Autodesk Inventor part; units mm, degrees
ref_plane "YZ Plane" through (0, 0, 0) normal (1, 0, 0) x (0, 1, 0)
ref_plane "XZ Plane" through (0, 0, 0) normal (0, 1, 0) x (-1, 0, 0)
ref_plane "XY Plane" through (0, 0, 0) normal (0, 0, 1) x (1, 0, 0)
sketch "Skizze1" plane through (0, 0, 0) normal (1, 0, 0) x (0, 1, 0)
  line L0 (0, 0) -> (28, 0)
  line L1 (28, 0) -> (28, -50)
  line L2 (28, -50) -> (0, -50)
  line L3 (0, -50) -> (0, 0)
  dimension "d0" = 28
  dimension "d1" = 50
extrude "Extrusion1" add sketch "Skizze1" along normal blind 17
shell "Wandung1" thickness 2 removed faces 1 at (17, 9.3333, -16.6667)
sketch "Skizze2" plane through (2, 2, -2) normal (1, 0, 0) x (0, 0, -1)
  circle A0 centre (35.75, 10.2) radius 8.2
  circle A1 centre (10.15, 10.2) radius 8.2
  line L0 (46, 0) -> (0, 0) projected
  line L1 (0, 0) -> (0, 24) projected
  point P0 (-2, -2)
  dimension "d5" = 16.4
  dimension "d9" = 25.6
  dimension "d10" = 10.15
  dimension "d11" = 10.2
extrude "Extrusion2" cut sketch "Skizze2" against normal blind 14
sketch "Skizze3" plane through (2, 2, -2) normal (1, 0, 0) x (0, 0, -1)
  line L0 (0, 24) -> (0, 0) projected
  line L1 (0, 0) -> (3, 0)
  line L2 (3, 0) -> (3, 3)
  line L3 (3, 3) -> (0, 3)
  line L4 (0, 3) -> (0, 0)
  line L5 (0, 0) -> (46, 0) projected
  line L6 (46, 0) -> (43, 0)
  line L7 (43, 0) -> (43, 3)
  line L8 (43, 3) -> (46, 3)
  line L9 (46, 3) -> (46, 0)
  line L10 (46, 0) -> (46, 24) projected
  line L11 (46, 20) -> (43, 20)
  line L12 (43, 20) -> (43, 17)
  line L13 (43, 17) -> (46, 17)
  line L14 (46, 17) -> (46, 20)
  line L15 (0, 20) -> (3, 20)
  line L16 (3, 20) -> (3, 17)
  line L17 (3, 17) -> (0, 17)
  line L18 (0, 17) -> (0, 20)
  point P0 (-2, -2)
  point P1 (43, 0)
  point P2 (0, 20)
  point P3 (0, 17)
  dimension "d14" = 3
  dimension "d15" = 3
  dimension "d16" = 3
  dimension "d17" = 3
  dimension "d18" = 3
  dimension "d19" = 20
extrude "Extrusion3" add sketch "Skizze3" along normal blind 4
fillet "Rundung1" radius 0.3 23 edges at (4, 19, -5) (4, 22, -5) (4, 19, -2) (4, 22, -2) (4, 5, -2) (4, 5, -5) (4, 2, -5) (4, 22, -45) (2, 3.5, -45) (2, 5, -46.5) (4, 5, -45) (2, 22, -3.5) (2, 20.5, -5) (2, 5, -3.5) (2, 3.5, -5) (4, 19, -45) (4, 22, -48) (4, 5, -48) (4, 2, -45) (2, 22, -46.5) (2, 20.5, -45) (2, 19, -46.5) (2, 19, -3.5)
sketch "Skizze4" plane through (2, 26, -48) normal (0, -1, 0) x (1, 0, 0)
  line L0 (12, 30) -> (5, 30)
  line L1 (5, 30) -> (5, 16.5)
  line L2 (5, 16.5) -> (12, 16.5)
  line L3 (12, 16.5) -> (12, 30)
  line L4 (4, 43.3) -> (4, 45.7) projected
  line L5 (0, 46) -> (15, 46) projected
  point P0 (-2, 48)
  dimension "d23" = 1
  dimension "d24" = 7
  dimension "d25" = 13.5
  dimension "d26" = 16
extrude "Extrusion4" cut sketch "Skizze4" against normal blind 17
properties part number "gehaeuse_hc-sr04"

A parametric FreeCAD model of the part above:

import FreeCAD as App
import Part
import Sketcher
from FreeCAD import Vector


def edges_at(feature, points):
    """Names of the edges that pass closest to the given points."""
    edges = feature.Shape.Edges
    near = lambda p: min(range(len(edges)), key=lambda i: edges[i].distToShape(Part.Vertex(*p))[0])
    return sorted({f"Edge{near(p) + 1}" for p in points})


def faces_at(feature, points):
    """Names of the faces that lie closest to the given points."""
    faces = feature.Shape.Faces
    near = lambda p: min(range(len(faces)), key=lambda i: faces[i].distToShape(Part.Vertex(*p))[0])
    return sorted({f"Face{near(p) + 1}" for p in points})

doc = App.newDocument("Part")
params = doc.addObject("Spreadsheet::Sheet", "Params")
for row, (alias, value) in enumerate([
    ("sketch1_width", "28 mm"),
    ("sketch1_height", "50 mm"),
    ("pad1_length", "17 mm"),
    ("thickness_wall", "2 mm"),
    ("sketch2_diameter", "16.4 mm"),
    ("pocket1_length", "14 mm"),
    ("sketch3_width", "3 mm"),
    ("pad2_length", "4 mm"),
    ("fillet_radius", "0.3 mm"),
    ("sketch4_width", "7 mm"),
    ("sketch4_height", "13.5 mm"),
    ("pocket2_length", "17 mm"),
], start=1):
    params.set(f"A{row}", alias)
    params.set(f"B{row}", "=" + value)
    params.setAlias(f"B{row}", alias)

body = doc.addObject("PartDesign::Body", "Body")

# Sketch on YZ plane
sketch1 = body.newObject("Sketcher::SketchObject", "Sketch")
sketch1.AttachmentSupport = (doc.getObject("YZ_Plane"), [""])
sketch1.MapMode = "FlatFace"
sketch1.addGeometry(Part.LineSegment(Vector(28, 0, 0), Vector(0, 0, 0)), False)
sketch1.addGeometry(Part.LineSegment(Vector(0, 0, 0), Vector(0, -50, 0)), False)
sketch1.addGeometry(Part.LineSegment(Vector(0, -50, 0), Vector(28, -50, 0)), False)
sketch1.addGeometry(Part.LineSegment(Vector(28, -50, 0), Vector(28, 0, 0)), False)
sketch1.addConstraint(Sketcher.Constraint("Coincident", 0, 2, 1, 1))
sketch1.addConstraint(Sketcher.Constraint("Coincident", 1, 2, 2, 1))
sketch1.addConstraint(Sketcher.Constraint("Coincident", 2, 2, 3, 1))
sketch1.addConstraint(Sketcher.Constraint("Coincident", 3, 2, 0, 1))
sketch1.addConstraint(Sketcher.Constraint("Horizontal", 0))
sketch1.addConstraint(Sketcher.Constraint("Vertical", 1))
sketch1.addConstraint(Sketcher.Constraint("Horizontal", 2))
sketch1.addConstraint(Sketcher.Constraint("Vertical", 3))
sketch1.addConstraint(Sketcher.Constraint("Coincident", 0, 2, -1, 1))
sketch1.addConstraint(Sketcher.Constraint("DistanceX", 0, 2, 0, 1, 28.0))
sketch1.addConstraint(Sketcher.Constraint("DistanceY", 1, 2, 1, 1, 50.0))
sketch1.setExpression("Constraints[9]", "Params.sketch1_width")
sketch1.setExpression("Constraints[10]", "Params.sketch1_height")
pad1 = body.newObject("PartDesign::Pad", "Pad")
pad1.Profile = sketch1
pad1.setExpression("Length", "Params.pad1_length")
doc.recompute()

thickness = body.newObject("PartDesign::Thickness", "Thickness")
thickness.Base = (pad1, faces_at(pad1, [(17, 9.333, -16.667)]))
thickness.setExpression("Value", "Params.thickness_wall")
thickness.Reversed = True
thickness.Join = "Intersection"

# Sketch on YZ plane
sketch2 = body.newObject("Sketcher::SketchObject", "Sketch001")
sketch2.AttachmentSupport = (doc.getObject("YZ_Plane"), [""])
sketch2.MapMode = "FlatFace"
sketch2.AttachmentOffset = App.Placement(Vector(0, 0, 2), App.Rotation())
sketch2.addGeometry(Part.Circle(Vector(12, -38, 0), Vector(0, 0, 1), 8), False)
sketch2.addGeometry(Part.Circle(Vector(12, -12, 0), Vector(0, 0, 1), 8), False)
sketch2.addConstraint(Sketcher.Constraint("Equal", 0, 1))
sketch2.addConstraint(Sketcher.Constraint("Vertical", 0, 3, 1, 3))
sketch2.addConstraint(Sketcher.Constraint("Diameter", 0, 16.4))
sketch2.addConstraint(Sketcher.Constraint("DistanceY", 0, 3, 1, 3, 25.6))
sketch2.addConstraint(Sketcher.Constraint("DistanceX", -1, 1, 0, 3, 12.2))
sketch2.addConstraint(Sketcher.Constraint("DistanceY", 0, 3, -1, 1, 37.75))
sketch2.setExpression("Constraints[2]", "Params.sketch2_diameter")
pocket1 = body.newObject("PartDesign::Pocket", "Pocket")
pocket1.Profile = sketch2
pocket1.setExpression("Length", "Params.pocket1_length")

# Sketch on YZ plane
sketch3 = body.newObject("Sketcher::SketchObject", "Sketch002")
sketch3.AttachmentSupport = (doc.getObject("YZ_Plane"), [""])
sketch3.MapMode = "FlatFace"
sketch3.AttachmentOffset = App.Placement(Vector(0, 0, 2), App.Rotation())
sketch3.addGeometry(Part.LineSegment(Vector(22, -5, 0), Vector(22, -2, 0)), False)
sketch3.addGeometry(Part.LineSegment(Vector(22, -2, 0), Vector(19, -2, 0)), False)
sketch3.addGeometry(Part.LineSegment(Vector(19, -2, 0), Vector(19, -5, 0)), False)
sketch3.addGeometry(Part.LineSegment(Vector(19, -5, 0), Vector(22, -5, 0)), False)
sketch3.addGeometry(Part.LineSegment(Vector(19, -45, 0), Vector(19, -48, 0)), False)
sketch3.addGeometry(Part.LineSegment(Vector(19, -48, 0), Vector(22, -48, 0)), False)
sketch3.addGeometry(Part.LineSegment(Vector(22, -48, 0), Vector(22, -45, 0)), False)
sketch3.addGeometry(Part.LineSegment(Vector(22, -45, 0), Vector(19, -45, 0)), False)
sketch3.addGeometry(Part.LineSegment(Vector(5, -45, 0), Vector(2, -45, 0)), False)
sketch3.addGeometry(Part.LineSegment(Vector(2, -45, 0), Vector(2, -48, 0)), False)
sketch3.addGeometry(Part.LineSegment(Vector(2, -48, 0), Vector(5, -48, 0)), False)
sketch3.addGeometry(Part.LineSegment(Vector(5, -48, 0), Vector(5, -45, 0)), False)
sketch3.addGeometry(Part.LineSegment(Vector(5, -5, 0), Vector(5, -2, 0)), False)
sketch3.addGeometry(Part.LineSegment(Vector(5, -2, 0), Vector(2, -2, 0)), False)
sketch3.addGeometry(Part.LineSegment(Vector(2, -2, 0), Vector(2, -5, 0)), False)
sketch3.addGeometry(Part.LineSegment(Vector(2, -5, 0), Vector(5, -5, 0)), False)
sketch3.addConstraint(Sketcher.Constraint("Coincident", 0, 2, 1, 1))
sketch3.addConstraint(Sketcher.Constraint("Coincident", 1, 2, 2, 1))
sketch3.addConstraint(Sketcher.Constraint("Coincident", 2, 2, 3, 1))
sketch3.addConstraint(Sketcher.Constraint("Coincident", 3, 2, 0, 1))
sketch3.addConstraint(Sketcher.Constraint("Coincident", 4, 2, 5, 1))
sketch3.addConstraint(Sketcher.Constraint("Coincident", 5, 2, 6, 1))
sketch3.addConstraint(Sketcher.Constraint("Coincident", 6, 2, 7, 1))
sketch3.addConstraint(Sketcher.Constraint("Coincident", 7, 2, 4, 1))
sketch3.addConstraint(Sketcher.Constraint("Coincident", 8, 2, 9, 1))
sketch3.addConstraint(Sketcher.Constraint("Coincident", 9, 2, 10, 1))
sketch3.addConstraint(Sketcher.Constraint("Coincident", 10, 2, 11, 1))
sketch3.addConstraint(Sketcher.Constraint("Coincident", 11, 2, 8, 1))
sketch3.addConstraint(Sketcher.Constraint("Coincident", 12, 2, 13, 1))
sketch3.addConstraint(Sketcher.Constraint("Coincident", 13, 2, 14, 1))
sketch3.addConstraint(Sketcher.Constraint("Coincident", 14, 2, 15, 1))
sketch3.addConstraint(Sketcher.Constraint("Coincident", 15, 2, 12, 1))
sketch3.addConstraint(Sketcher.Constraint("Vertical", 0))
sketch3.addConstraint(Sketcher.Constraint("Horizontal", 1))
sketch3.addConstraint(Sketcher.Constraint("Vertical", 2))
sketch3.addConstraint(Sketcher.Constraint("Horizontal", 3))
sketch3.addConstraint(Sketcher.Constraint("Vertical", 4))
sketch3.addConstraint(Sketcher.Constraint("Horizontal", 5))
sketch3.addConstraint(Sketcher.Constraint("Vertical", 6))
sketch3.addConstraint(Sketcher.Constraint("Horizontal", 7))
sketch3.addConstraint(Sketcher.Constraint("Horizontal", 8))
sketch3.addConstraint(Sketcher.Constraint("Vertical", 9))
sketch3.addConstraint(Sketcher.Constraint("Horizontal", 10))
sketch3.addConstraint(Sketcher.Constraint("Vertical", 11))
sketch3.addConstraint(Sketcher.Constraint("Vertical", 12))
sketch3.addConstraint(Sketcher.Constraint("Horizontal", 13))
sketch3.addConstraint(Sketcher.Constraint("Vertical", 14))
sketch3.addConstraint(Sketcher.Constraint("Horizontal", 15))
sketch3.addConstraint(Sketcher.Constraint("Horizontal", 7, 2, 8, 2))
sketch3.addConstraint(Sketcher.Constraint("Horizontal", 5, 2, 9, 2))
sketch3.addConstraint(Sketcher.Constraint("Horizontal", 1, 2, 12, 2))
sketch3.addConstraint(Sketcher.Constraint("Horizontal", 3, 2, 14, 2))
sketch3.addConstraint(Sketcher.Constraint("Vertical", 2, 2, 4, 2))
sketch3.addConstraint(Sketcher.Constraint("Vertical", 3, 2, 5, 2))
sketch3.addConstraint(Sketcher.Constraint("Vertical", 11, 2, 12, 2))
sketch3.addConstraint(Sketcher.Constraint("Vertical", 9, 2, 13, 2))
sketch3.addConstraint(Sketcher.Constraint("Equal", 7, 8))
sketch3.addConstraint(Sketcher.Constraint("Equal", 15, 0))
sketch3.addConstraint(Sketcher.Constraint("Equal", 2, 4))
sketch3.addConstraint(Sketcher.Constraint("DistanceX", 1, 2, 1, 1, 3.0))
sketch3.addConstraint(Sketcher.Constraint("DistanceX", 8, 2, 6, 2, 20.0))
sketch3.addConstraint(Sketcher.Constraint("DistanceX", -1, 1, 0, 2, 22.0))
sketch3.addConstraint(Sketcher.Constraint("DistanceY", 0, 2, -1, 1, 2.0))
sketch3.addConstraint(Sketcher.Constraint("DistanceY", 4, 2, -1, 1, 48.0))
sketch3.setExpression("Constraints[43]", "Params.sketch3_width")
pad2 = body.newObject("PartDesign::Pad", "Pad001")
pad2.Profile = sketch3
pad2.setExpression("Length", "Params.pad2_length")
doc.recompute()

fillet = body.newObject("PartDesign::Fillet", "Fillet")
fillet.Base = (pad2, edges_at(pad2, [
    (4, 19, -5),
    (4, 22, -5),
    (4, 19, -2),
    (4, 22, -2),
    (4, 5, -2),
    (4, 5, -5),
    (4, 2, -5),
    (4, 22, -45),
    (2, 3.5, -45),
    (2, 5, -46.5),
    (4, 5, -45),
    (2, 22, -3.5),
    (2, 20.5, -5),
    (2, 5, -3.5),
    (2, 3.5, -5),
    (4, 19, -45),
    (4, 22, -48),
    (4, 5, -48),
    (4, 2, -45),
    (2, 22, -46.5),
    (2, 20.5, -45),
    (2, 19, -46.5),
    (2, 19, -3.5),
]))
fillet.setExpression("Radius", "Params.fillet_radius")

# Sketch on XZ plane
sketch4 = body.newObject("Sketcher::SketchObject", "Sketch003")
sketch4.AttachmentSupport = (doc.getObject("XZ_Plane"), [""])
sketch4.MapMode = "FlatFace"
sketch4.AttachmentOffset = App.Placement(Vector(0, 0, -26), App.Rotation())
sketch4.addGeometry(Part.LineSegment(Vector(14, -32, 0), Vector(14, -18, 0)), False)
sketch4.addGeometry(Part.LineSegment(Vector(14, -18, 0), Vector(7, -18, 0)), False)
sketch4.addGeometry(Part.LineSegment(Vector(7, -18, 0), Vector(7, -32, 0)), False)
sketch4.addGeometry(Part.LineSegment(Vector(7, -32, 0), Vector(14, -32, 0)), False)
sketch4.addConstraint(Sketcher.Constraint("Coincident", 0, 2, 1, 1))
sketch4.addConstraint(Sketcher.Constraint("Coincident", 1, 2, 2, 1))
sketch4.addConstraint(Sketcher.Constraint("Coincident", 2, 2, 3, 1))
sketch4.addConstraint(Sketcher.Constraint("Coincident", 3, 2, 0, 1))
sketch4.addConstraint(Sketcher.Constraint("Vertical", 0))
sketch4.addConstraint(Sketcher.Constraint("Horizontal", 1))
sketch4.addConstraint(Sketcher.Constraint("Vertical", 2))
sketch4.addConstraint(Sketcher.Constraint("Horizontal", 3))
sketch4.addConstraint(Sketcher.Constraint("DistanceX", 1, 2, 1, 1, 7.0))
sketch4.addConstraint(Sketcher.Constraint("DistanceY", 0, 1, 0, 2, 13.5))
sketch4.addConstraint(Sketcher.Constraint("DistanceX", -1, 1, 1, 2, 7.0))
sketch4.addConstraint(Sketcher.Constraint("DistanceY", 0, 2, -1, 1, 18.0))
sketch4.setExpression("Constraints[8]", "Params.sketch4_width")
sketch4.setExpression("Constraints[9]", "Params.sketch4_height")
pocket2 = body.newObject("PartDesign::Pocket", "Pocket001")
pocket2.Profile = sketch4
pocket2.setExpression("Length", "Params.pocket2_length")

doc.recompute()
